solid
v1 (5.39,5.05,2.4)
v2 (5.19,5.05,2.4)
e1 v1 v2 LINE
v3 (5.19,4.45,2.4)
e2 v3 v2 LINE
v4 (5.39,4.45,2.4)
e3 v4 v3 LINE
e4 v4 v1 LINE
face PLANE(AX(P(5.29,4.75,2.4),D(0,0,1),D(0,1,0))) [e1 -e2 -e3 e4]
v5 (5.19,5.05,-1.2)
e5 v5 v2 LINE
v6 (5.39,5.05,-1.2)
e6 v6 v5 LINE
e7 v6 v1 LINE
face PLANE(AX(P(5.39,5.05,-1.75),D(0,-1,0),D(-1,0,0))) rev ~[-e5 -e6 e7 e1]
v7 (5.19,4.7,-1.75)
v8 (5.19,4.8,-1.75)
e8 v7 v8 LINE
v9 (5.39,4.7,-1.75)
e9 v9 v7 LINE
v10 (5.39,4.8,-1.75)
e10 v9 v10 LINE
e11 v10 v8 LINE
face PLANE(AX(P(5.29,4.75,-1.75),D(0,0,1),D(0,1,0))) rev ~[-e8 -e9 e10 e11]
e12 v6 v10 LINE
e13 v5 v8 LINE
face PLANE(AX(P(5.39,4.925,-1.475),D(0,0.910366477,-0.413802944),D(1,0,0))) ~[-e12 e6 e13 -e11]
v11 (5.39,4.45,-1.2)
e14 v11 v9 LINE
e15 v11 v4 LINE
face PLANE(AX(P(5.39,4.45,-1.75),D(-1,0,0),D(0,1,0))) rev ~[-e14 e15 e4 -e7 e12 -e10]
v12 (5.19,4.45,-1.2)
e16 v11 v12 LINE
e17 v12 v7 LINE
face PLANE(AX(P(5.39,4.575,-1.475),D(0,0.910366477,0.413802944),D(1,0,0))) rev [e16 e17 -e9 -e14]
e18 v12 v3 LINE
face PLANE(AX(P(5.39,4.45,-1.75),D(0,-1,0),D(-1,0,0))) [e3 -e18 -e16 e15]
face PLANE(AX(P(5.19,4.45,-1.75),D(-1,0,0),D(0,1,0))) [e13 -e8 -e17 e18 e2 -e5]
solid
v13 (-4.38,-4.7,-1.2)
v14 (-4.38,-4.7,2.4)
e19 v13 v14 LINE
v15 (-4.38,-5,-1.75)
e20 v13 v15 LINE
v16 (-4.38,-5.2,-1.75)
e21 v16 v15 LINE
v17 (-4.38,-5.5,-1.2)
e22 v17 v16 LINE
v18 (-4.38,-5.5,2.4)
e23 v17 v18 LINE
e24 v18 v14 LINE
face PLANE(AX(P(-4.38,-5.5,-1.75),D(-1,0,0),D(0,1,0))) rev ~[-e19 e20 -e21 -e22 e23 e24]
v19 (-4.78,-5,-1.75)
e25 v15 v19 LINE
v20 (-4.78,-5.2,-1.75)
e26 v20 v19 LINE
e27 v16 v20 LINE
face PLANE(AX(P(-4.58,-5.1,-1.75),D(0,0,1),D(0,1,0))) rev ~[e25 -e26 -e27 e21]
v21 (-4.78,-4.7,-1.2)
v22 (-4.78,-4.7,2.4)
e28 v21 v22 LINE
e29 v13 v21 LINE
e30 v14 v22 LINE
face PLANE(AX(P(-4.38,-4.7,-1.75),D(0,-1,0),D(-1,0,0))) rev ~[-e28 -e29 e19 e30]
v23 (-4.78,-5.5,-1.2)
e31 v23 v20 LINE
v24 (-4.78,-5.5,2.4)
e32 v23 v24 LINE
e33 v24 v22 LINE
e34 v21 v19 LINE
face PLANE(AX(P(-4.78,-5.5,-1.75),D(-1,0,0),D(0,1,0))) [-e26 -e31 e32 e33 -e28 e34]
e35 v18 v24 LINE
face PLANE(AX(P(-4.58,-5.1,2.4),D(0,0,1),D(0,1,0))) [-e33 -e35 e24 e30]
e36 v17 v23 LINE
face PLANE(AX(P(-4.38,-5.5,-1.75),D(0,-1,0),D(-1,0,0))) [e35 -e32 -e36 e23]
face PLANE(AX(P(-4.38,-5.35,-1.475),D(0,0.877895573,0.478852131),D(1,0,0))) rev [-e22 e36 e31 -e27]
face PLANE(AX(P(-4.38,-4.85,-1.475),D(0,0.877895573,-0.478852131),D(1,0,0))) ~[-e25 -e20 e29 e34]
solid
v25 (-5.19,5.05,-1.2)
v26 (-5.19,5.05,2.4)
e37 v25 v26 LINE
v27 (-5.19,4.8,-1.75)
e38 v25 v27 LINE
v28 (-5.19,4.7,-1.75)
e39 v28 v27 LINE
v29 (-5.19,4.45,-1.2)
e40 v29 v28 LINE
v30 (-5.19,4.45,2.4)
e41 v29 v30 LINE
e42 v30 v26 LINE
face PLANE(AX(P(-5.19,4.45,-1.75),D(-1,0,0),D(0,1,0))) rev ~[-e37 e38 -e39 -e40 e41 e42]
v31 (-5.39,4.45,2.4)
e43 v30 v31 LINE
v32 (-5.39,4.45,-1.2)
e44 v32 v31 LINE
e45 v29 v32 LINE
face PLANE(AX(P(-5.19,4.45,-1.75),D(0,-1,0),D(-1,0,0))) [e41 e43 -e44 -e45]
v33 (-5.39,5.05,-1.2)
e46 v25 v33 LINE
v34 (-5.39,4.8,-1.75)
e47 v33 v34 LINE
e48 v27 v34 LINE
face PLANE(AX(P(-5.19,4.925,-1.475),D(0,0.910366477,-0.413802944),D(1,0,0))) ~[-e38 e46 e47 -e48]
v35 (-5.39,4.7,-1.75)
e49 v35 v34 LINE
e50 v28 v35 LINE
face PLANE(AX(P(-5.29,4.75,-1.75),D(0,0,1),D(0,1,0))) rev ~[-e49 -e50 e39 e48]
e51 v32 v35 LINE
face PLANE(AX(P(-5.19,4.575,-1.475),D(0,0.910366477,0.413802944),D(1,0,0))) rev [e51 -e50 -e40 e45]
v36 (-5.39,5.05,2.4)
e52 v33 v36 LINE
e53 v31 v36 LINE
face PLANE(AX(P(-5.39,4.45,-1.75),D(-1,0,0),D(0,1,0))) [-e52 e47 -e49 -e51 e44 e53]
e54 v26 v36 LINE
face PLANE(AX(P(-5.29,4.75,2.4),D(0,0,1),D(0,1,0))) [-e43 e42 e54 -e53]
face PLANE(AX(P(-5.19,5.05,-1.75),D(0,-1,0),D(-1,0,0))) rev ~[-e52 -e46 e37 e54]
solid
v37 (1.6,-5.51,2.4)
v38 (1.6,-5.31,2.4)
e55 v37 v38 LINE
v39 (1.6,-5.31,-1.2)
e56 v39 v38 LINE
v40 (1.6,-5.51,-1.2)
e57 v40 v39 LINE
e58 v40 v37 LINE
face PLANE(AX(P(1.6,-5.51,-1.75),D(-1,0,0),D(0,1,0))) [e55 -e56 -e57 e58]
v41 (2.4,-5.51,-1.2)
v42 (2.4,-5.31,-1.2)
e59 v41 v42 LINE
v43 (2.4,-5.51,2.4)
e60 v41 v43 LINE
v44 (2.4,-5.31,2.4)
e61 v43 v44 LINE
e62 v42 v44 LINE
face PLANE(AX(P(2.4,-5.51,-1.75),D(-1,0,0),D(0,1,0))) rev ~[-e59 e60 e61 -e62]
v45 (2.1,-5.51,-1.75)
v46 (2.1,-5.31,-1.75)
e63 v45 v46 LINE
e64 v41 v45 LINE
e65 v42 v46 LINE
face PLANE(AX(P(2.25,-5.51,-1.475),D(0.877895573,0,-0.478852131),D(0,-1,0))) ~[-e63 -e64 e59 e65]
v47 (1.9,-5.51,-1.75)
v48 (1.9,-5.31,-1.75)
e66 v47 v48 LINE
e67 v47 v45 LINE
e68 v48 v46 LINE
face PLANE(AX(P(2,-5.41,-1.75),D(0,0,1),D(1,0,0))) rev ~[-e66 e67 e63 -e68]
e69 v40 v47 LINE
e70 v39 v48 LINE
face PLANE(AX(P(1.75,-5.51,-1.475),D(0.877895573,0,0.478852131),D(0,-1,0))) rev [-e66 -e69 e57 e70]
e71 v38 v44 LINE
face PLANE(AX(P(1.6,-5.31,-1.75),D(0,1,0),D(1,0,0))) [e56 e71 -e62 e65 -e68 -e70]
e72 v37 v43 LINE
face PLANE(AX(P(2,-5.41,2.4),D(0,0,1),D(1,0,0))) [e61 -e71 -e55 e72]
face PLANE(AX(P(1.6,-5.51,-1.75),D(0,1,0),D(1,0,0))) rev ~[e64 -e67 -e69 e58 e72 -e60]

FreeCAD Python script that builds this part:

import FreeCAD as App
import Part
import Sketcher


def edges_at(feature, points):
    """Names of the edges that pass closest to the given points."""
    edges = feature.Shape.Edges
    near = lambda p: min(range(len(edges)), key=lambda i: edges[i].distToShape(Part.Vertex(*p))[0])
    return sorted({f"Edge{near(p) + 1}" for p in points})


def add_polygon(sketch, points):
    """Adds a closed chain of lines whose ends are joined by coincident constraints."""
    first, n = sketch.GeometryCount, len(points)
    for a, b in zip(points, points[1:] + points[:1]):
        sketch.addGeometry(Part.LineSegment(App.Vector(*a, 0), App.Vector(*b, 0)), False)
    for i in range(n):
        sketch.addConstraint(Sketcher.Constraint("Coincident", first + i, 2, first + (i + 1) % n, 1))

doc = App.newDocument("Part")
params = doc.addObject("Spreadsheet::Sheet", "Params")
for row, (alias, value) in enumerate([
    ("sketch1_width", "0.2 mm"),
    ("sketch1_height", "0.6 mm"),
    ("pad1_length", "4.15 mm"),
    ("chamfer_size", "0.55 mm"),
    ("chamfer_size2", "0.25 mm"),
    ("chamfer2_size", "0.55 mm"),
    ("chamfer2_size2", "0.25 mm"),
    ("sketch2_width", "0.4 mm"),
    ("sketch2_height", "0.8 mm"),
    ("pad2_length", "4.15 mm"),
    ("chamfer3_size", "0.55 mm"),
    ("chamfer3_size2", "0.3 mm"),
    ("chamfer4_size", "0.55 mm"),
    ("chamfer4_size2", "0.3 mm"),
    ("sketch3_width", "0.8 mm"),
    ("sketch3_height", "0.2 mm"),
    ("pad3_length", "4.15 mm"),
    ("chamfer5_size", "0.55 mm"),
    ("chamfer5_size2", "0.3 mm"),
    ("chamfer6_size", "0.55 mm"),
    ("chamfer6_size2", "0.3 mm"),
    ("sketch4_width", "0.2 mm"),
    ("sketch4_height", "0.6 mm"),
    ("pad4_length", "4.15 mm"),
    ("chamfer7_size", "0.55 mm"),
    ("chamfer7_size2", "0.25 mm"),
    ("chamfer8_size", "0.55 mm"),
    ("chamfer8_size2", "0.25 mm"),
], start=1):
    params.set(f"A{row}", alias)
    params.set(f"B{row}", "=" + value)
    params.setAlias(f"B{row}", alias)

body = doc.addObject("PartDesign::Body", "Body")

# Sketch on XY plane
sketch1 = body.newObject("Sketcher::SketchObject", "Sketch")
sketch1.AttachmentSupport = (doc.getObject("XY_Plane"), [""])
sketch1.MapMode = "FlatFace"
sketch1.AttachmentOffset = App.Placement(App.Vector(0, 0, -1.75), App.Rotation())
add_polygon(sketch1, [(5.19, 4.45), (5.39, 4.45), (5.39, 5.05), (5.19, 5.05)])  # lines 0-3
sketch1.addConstraint([
    Sketcher.Constraint("Horizontal", 0),
    Sketcher.Constraint("Vertical", 1),
    Sketcher.Constraint("Horizontal", 2),
    Sketcher.Constraint("Vertical", 3),
    Sketcher.Constraint("DistanceX", 0, 1, 0, 2, 0.2),
    Sketcher.Constraint("DistanceY", 1, 1, 1, 2, 0.6),
    Sketcher.Constraint("DistanceX", -1, 1, 0, 2, 5.39),
    Sketcher.Constraint("DistanceY", -1, 1, 0, 2, 4.45),
])
sketch1.setExpression("Constraints[8]", "Params.sketch1_width")
sketch1.setExpression("Constraints[9]", "Params.sketch1_height")
pad1 = body.newObject("PartDesign::Pad", "Pad")
pad1.Profile = sketch1
pad1.setExpression("Length", "Params.pad1_length")
doc.recompute()

chamfer = body.newObject("PartDesign::Chamfer", "Chamfer")
chamfer.Base = (pad1, edges_at(pad1, [(5.29, 5.05, -1.75)]))
chamfer.ChamferType = "Two distances"
chamfer.setExpression("Size", "Params.chamfer_size")
chamfer.setExpression("Size2", "Params.chamfer_size2")
doc.recompute()

chamfer2 = body.newObject("PartDesign::Chamfer", "Chamfer001")
chamfer2.Base = (chamfer, edges_at(chamfer, [(5.29, 4.45, -1.75)]))
chamfer2.ChamferType = "Two distances"
chamfer2.setExpression("Size", "Params.chamfer2_size")
chamfer2.setExpression("Size2", "Params.chamfer2_size2")
chamfer2.FlipDirection = True
body2 = doc.addObject("PartDesign::Body", "Body001")

# Sketch on XY plane
sketch2 = body2.newObject("Sketcher::SketchObject", "Sketch001")
sketch2.AttachmentSupport = (doc.getObject("XY_Plane001"), [""])
sketch2.MapMode = "FlatFace"
sketch2.AttachmentOffset = App.Placement(App.Vector(0, 0, -1.75), App.Rotation())
add_polygon(sketch2, [(-4.78, -5.5), (-4.38, -5.5), (-4.38, -4.7), (-4.78, -4.7)])  # lines 0-3
sketch2.addConstraint([
    Sketcher.Constraint("Horizontal", 0),
    Sketcher.Constraint("Vertical", 1),
    Sketcher.Constraint("Horizontal", 2),
    Sketcher.Constraint("Vertical", 3),
    Sketcher.Constraint("DistanceX", 0, 1, 0, 2, 0.4),
    Sketcher.Constraint("DistanceY", 1, 1, 1, 2, 0.8),
    Sketcher.Constraint("DistanceY", 0, 2, -1, 1, 5.5),
    Sketcher.Constraint("DistanceX", 0, 2, -1, 1, 4.38),
])
sketch2.setExpression("Constraints[8]", "Params.sketch2_width")
sketch2.setExpression("Constraints[9]", "Params.sketch2_height")
pad2 = body2.newObject("PartDesign::Pad", "Pad001")
pad2.Profile = sketch2
pad2.setExpression("Length", "Params.pad2_length")
doc.recompute()

chamfer3 = body2.newObject("PartDesign::Chamfer", "Chamfer002")
chamfer3.Base = (pad2, edges_at(pad2, [(-4.58, -4.7, -1.75)]))
chamfer3.ChamferType = "Two distances"
chamfer3.setExpression("Size", "Params.chamfer3_size")
chamfer3.setExpression("Size2", "Params.chamfer3_size2")
doc.recompute()

chamfer4 = body2.newObject("PartDesign::Chamfer", "Chamfer003")
chamfer4.Base = (chamfer3, edges_at(chamfer3, [(-4.58, -5.5, -1.75)]))
chamfer4.ChamferType = "Two distances"
chamfer4.setExpression("Size", "Params.chamfer4_size")
chamfer4.setExpression("Size2", "Params.chamfer4_size2")
chamfer4.FlipDirection = True
body3 = doc.addObject("PartDesign::Body", "Body002")

# Sketch on XY plane
sketch3 = body3.newObject("Sketcher::SketchObject", "Sketch002")
sketch3.AttachmentSupport = (doc.getObject("XY_Plane002"), [""])
sketch3.MapMode = "FlatFace"
sketch3.AttachmentOffset = App.Placement(App.Vector(0, 0, -1.75), App.Rotation())
add_polygon(sketch3, [(1.6, -5.31), (1.6, -5.51), (2.4, -5.51), (2.4, -5.31)])  # lines 0-3
sketch3.addConstraint([
    Sketcher.Constraint("Vertical", 0),
    Sketcher.Constraint("Horizontal", 1),
    Sketcher.Constraint("Vertical", 2),
    Sketcher.Constraint("Horizontal", 3),
    Sketcher.Constraint("DistanceX", 1, 1, 1, 2, 0.8),
    Sketcher.Constraint("DistanceY", 0, 2, 0, 1, 0.2),
    Sketcher.Constraint("DistanceX", -1, 1, 0, 2, 1.6),
    Sketcher.Constraint("DistanceY", 0, 2, -1, 1, 5.51),
])
sketch3.setExpression("Constraints[8]", "Params.sketch3_width")
sketch3.setExpression("Constraints[9]", "Params.sketch3_height")
pad3 = body3.newObject("PartDesign::Pad", "Pad002")
pad3.Profile = sketch3
pad3.setExpression("Length", "Params.pad3_length")
doc.recompute()

chamfer5 = body3.newObject("PartDesign::Chamfer", "Chamfer004")
chamfer5.Base = (pad3, edges_at(pad3, [(2.4, -5.41, -1.75)]))
chamfer5.ChamferType = "Two distances"
chamfer5.setExpression("Size", "Params.chamfer5_size")
chamfer5.setExpression("Size2", "Params.chamfer5_size2")
doc.recompute()

chamfer6 = body3.newObject("PartDesign::Chamfer", "Chamfer005")
chamfer6.Base = (chamfer5, edges_at(chamfer5, [(1.6, -5.41, -1.75)]))
chamfer6.ChamferType = "Two distances"
chamfer6.setExpression("Size", "Params.chamfer6_size")
chamfer6.setExpression("Size2", "Params.chamfer6_size2")
chamfer6.FlipDirection = True
body4 = doc.addObject("PartDesign::Body", "Body003")
body4.AllowCompound = True

# Sketch on XY plane
sketch4 = body4.newObject("Sketcher::SketchObject", "Sketch003")
sketch4.AttachmentSupport = (doc.getObject("XY_Plane003"), [""])
sketch4.MapMode = "FlatFace"
sketch4.AttachmentOffset = App.Placement(App.Vector(0, 0, -1.75), App.Rotation())
add_polygon(sketch4, [(-5.39, 4.45), (-5.19, 4.45), (-5.19, 5.05), (-5.39, 5.05)])  # lines 0-3
sketch4.addConstraint([
    Sketcher.Constraint("Horizontal", 0),
    Sketcher.Constraint("Vertical", 1),
    Sketcher.Constraint("Horizontal", 2),
    Sketcher.Constraint("Vertical", 3),
    Sketcher.Constraint("DistanceX", 0, 1, 0, 2, 0.2),
    Sketcher.Constraint("DistanceY", 1, 1, 1, 2, 0.6),
    Sketcher.Constraint("DistanceX", 0, 2, -1, 1, 5.19),
    Sketcher.Constraint("DistanceY", -1, 1, 0, 2, 4.45),
])
sketch4.setExpression("Constraints[8]", "Params.sketch4_width")
sketch4.setExpression("Constraints[9]", "Params.sketch4_height")
pad4 = body4.newObject("PartDesign::Pad", "Pad003")
pad4.Profile = sketch4
pad4.setExpression("Length", "Params.pad4_length")
doc.recompute()

chamfer7 = body4.newObject("PartDesign::Chamfer", "Chamfer006")
chamfer7.Base = (pad4, edges_at(pad4, [(-5.29, 5.05, -1.75)]))
chamfer7.ChamferType = "Two distances"
chamfer7.setExpression("Size", "Params.chamfer7_size")
chamfer7.setExpression("Size2", "Params.chamfer7_size2")
doc.recompute()

chamfer8 = body4.newObject("PartDesign::Chamfer", "Chamfer007")
chamfer8.Base = (chamfer7, edges_at(chamfer7, [(-5.29, 4.45, -1.75)]))
chamfer8.ChamferType = "Two distances"
chamfer8.setExpression("Size", "Params.chamfer8_size")
chamfer8.setExpression("Size2", "Params.chamfer8_size2")
chamfer8.FlipDirection = True
doc.recompute()

boolean = body4.newObject("PartDesign::Boolean", "Boolean")
boolean.Type = "Fuse"
boolean.addObjects([body])
doc.recompute()

boolean2 = body4.newObject("PartDesign::Boolean", "Boolean001")
boolean2.Type = "Fuse"
boolean2.addObjects([body2])
doc.recompute()

boolean3 = body4.newObject("PartDesign::Boolean", "Boolean002")
boolean3.Type = "Fuse"
boolean3.addObjects([body3])

doc.recompute()
